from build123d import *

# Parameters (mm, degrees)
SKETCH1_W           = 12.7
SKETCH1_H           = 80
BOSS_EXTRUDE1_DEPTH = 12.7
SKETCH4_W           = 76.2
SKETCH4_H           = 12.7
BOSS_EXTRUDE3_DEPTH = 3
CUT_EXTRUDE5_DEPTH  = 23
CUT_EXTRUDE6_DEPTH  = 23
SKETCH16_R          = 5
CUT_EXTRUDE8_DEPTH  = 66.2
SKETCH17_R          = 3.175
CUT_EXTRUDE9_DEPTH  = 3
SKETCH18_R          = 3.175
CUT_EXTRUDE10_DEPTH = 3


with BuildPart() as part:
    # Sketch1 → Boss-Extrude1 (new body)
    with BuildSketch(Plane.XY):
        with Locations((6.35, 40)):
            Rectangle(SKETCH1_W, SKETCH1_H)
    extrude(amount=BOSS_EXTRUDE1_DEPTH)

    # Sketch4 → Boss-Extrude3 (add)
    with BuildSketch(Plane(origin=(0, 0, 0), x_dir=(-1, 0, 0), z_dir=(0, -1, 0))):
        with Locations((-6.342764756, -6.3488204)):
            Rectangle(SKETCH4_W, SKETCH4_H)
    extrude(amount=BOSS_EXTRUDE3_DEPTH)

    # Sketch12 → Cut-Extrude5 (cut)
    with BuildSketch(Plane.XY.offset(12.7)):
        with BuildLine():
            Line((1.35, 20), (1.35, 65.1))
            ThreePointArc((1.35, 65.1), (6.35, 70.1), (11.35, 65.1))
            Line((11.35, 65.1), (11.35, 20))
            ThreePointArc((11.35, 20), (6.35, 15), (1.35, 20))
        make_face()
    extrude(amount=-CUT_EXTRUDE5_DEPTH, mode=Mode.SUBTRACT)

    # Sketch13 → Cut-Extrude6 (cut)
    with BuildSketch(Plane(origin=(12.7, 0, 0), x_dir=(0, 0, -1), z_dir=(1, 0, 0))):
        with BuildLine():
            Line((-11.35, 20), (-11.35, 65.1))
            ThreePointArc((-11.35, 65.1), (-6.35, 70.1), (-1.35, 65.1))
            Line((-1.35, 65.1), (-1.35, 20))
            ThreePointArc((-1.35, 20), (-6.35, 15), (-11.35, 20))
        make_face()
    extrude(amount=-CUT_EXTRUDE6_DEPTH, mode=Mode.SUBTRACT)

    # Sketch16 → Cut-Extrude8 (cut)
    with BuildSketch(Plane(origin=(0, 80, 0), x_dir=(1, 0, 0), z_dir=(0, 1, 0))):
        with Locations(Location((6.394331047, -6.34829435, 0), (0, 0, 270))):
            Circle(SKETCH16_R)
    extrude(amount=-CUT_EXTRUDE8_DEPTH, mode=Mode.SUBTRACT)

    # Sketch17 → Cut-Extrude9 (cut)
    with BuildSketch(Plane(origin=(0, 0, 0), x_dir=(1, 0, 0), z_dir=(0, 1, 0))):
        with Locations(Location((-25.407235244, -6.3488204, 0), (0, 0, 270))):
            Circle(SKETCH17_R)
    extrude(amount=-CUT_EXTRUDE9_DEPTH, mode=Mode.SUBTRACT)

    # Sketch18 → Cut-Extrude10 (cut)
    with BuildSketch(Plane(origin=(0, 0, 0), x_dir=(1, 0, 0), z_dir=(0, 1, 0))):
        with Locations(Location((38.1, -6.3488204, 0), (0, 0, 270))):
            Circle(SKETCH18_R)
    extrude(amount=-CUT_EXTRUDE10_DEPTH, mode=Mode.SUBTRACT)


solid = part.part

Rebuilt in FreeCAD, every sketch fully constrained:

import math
import FreeCAD as App
import Part
import Sketcher

V = App.Vector
Q = App.Units.Quantity


def add_polygon(sketch, points):
    """Adds a closed chain of lines whose ends are joined by coincident constraints."""
    first, n = sketch.GeometryCount, len(points)
    for a, b in zip(points, points[1:] + points[:1]):
        sketch.addGeometry(Part.LineSegment(App.Vector(*a, 0), App.Vector(*b, 0)), False)
    for i in range(n):
        sketch.addConstraint(Sketcher.Constraint("Coincident", first + i, 2, first + (i + 1) % n, 1))

doc = App.newDocument("Part")
body = doc.addObject("PartDesign::Body", "Body")

# Sketch on XY plane
sketch1 = body.newObject("Sketcher::SketchObject", "Sketch")
sketch1.AttachmentSupport = (doc.getObject("XY_Plane"), [""])
sketch1.MapMode = "FlatFace"
add_polygon(sketch1, [(0, 80), (0, 0), (12.7, 0), (12.7, 80)])  # lines 0-3
sketch1.addConstraint([
    Sketcher.Constraint("Vertical", 0),
    Sketcher.Constraint("Horizontal", 1),
    Sketcher.Constraint("Vertical", 2),
    Sketcher.Constraint("Horizontal", 3),
    Sketcher.Constraint("Coincident", 0, 2, -1, 1),
    Sketcher.Constraint("DistanceY", 0, 2, 0, 1, Q("80 mm")),
    Sketcher.Constraint("DistanceX", 1, 1, 1, 2, Q("12.7 mm")),
])
pad1 = body.newObject("PartDesign::Pad", "Pad")
pad1.Profile = sketch1
pad1.Length = 12.7

# Sketch on XZ plane
sketch2 = body.newObject("Sketcher::SketchObject", "Sketch001")
sketch2.AttachmentSupport = (doc.getObject("XZ_Plane"), [""])
sketch2.MapMode = "FlatFace"
add_polygon(sketch2, [(44.442765, -0.00118), (44.442765, 12.69882), (-31.757235, 12.69882), (-31.757235, -0.00118)])  # lines 0-3
sketch2.addConstraint([
    Sketcher.Constraint("Vertical", 0),
    Sketcher.Constraint("Horizontal", 1),
    Sketcher.Constraint("Vertical", 2),
    Sketcher.Constraint("Horizontal", 3),
    Sketcher.Constraint("DistanceX", 1, 2, 1, 1, Q("76.2 mm")),
    Sketcher.Constraint("DistanceY", 0, 1, 0, 2, Q("12.7 mm")),
    Sketcher.Constraint("DistanceY", -1, 1, 0, 2, Q("12.69882 mm")),
    Sketcher.Constraint("DistanceX", -1, 1, 0, 2, Q("44.442765 mm")),
])
pad2 = body.newObject("PartDesign::Pad", "Pad001")
pad2.Profile = sketch2
pad2.Length = 3

# Sketch on XY plane
sketch3 = body.newObject("Sketcher::SketchObject", "Sketch002")
sketch3.AttachmentSupport = (doc.getObject("XY_Plane"), [""])
sketch3.MapMode = "FlatFace"
sketch3.AttachmentOffset = App.Placement(V(0, 0, 12.7), App.Rotation())
sketch3.addGeometry([
    Part.LineSegment(V(1.35, 65.1, 0), V(1.35, 20, 0)),
    Part.ArcOfCircle(Part.Circle(V(6.35, 20, 0), V(0, 0, 1), 5), math.radians(180), math.radians(360)),
    Part.LineSegment(V(11.35, 20, 0), V(11.35, 65.1, 0)),
    Part.ArcOfCircle(Part.Circle(V(6.35, 65.1, 0), V(0, 0, 1), 5), math.radians(0), math.radians(180)),
], False)
sketch3.addConstraint([
    Sketcher.Constraint("Tangent", 0, 2, 1, 1),
    Sketcher.Constraint("Tangent", 1, 2, 2, 1),
    Sketcher.Constraint("Tangent", 2, 2, 3, 1),
    Sketcher.Constraint("Tangent", 3, 2, 0, 1),
    Sketcher.Constraint("Vertical", 0),
    Sketcher.Constraint("Vertical", 2),
    Sketcher.Constraint("Radius", 1, Q("5 mm")),
    Sketcher.Constraint("DistanceY", 0, 2, 0, 1, Q("45.1 mm")),
    Sketcher.Constraint("DistanceY", -1, 1, 1, 3, Q("20 mm")),
    Sketcher.Constraint("DistanceX", -1, 1, 1, 3, Q("6.35 mm")),
])
pocket1 = body.newObject("PartDesign::Pocket", "Pocket")
pocket1.Profile = sketch3
pocket1.Length = 23

# Sketch on YZ plane
sketch4 = body.newObject("Sketcher::SketchObject", "Sketch003")
sketch4.AttachmentSupport = (doc.getObject("YZ_Plane"), [""])
sketch4.MapMode = "FlatFace"
sketch4.AttachmentOffset = App.Placement(V(0, 0, 12.7), App.Rotation())
sketch4.addGeometry([
    Part.LineSegment(V(65.1, 11.35, 0), V(20, 11.35, 0)),
    Part.ArcOfCircle(Part.Circle(V(20, 6.35, 0), V(0, 0, 1), 5), math.radians(90), math.radians(270)),
    Part.LineSegment(V(20, 1.35, 0), V(65.1, 1.35, 0)),
    Part.ArcOfCircle(Part.Circle(V(65.1, 6.35, 0), V(0, 0, 1), 5), math.radians(-90), math.radians(90)),
], False)
sketch4.addConstraint([
    Sketcher.Constraint("Tangent", 0, 2, 1, 1),
    Sketcher.Constraint("Tangent", 1, 2, 2, 1),
    Sketcher.Constraint("Tangent", 2, 2, 3, 1),
    Sketcher.Constraint("Tangent", 3, 2, 0, 1),
    Sketcher.Constraint("Horizontal", 0),
    Sketcher.Constraint("Horizontal", 2),
    Sketcher.Constraint("Radius", 1, Q("5 mm")),
    Sketcher.Constraint("DistanceX", 0, 2, 0, 1, Q("45.1 mm")),
    Sketcher.Constraint("DistanceX", -1, 1, 1, 3, Q("20 mm")),
    Sketcher.Constraint("DistanceY", -1, 1, 1, 3, Q("6.35 mm")),
])
pocket2 = body.newObject("PartDesign::Pocket", "Pocket001")
pocket2.Profile = sketch4
pocket2.Length = 23

# Sketch on XZ plane
sketch5 = body.newObject("Sketcher::SketchObject", "Sketch004")
sketch5.AttachmentSupport = (doc.getObject("XZ_Plane"), [""])
sketch5.MapMode = "FlatFace"
sketch5.AttachmentOffset = App.Placement(V(0, 0, -80), App.Rotation())
sketch5.addGeometry(Part.Circle(V(6.394331, 6.348294, 0), V(0, 0, 1), 5), False)
sketch5.addConstraint([
    Sketcher.Constraint("Diameter", 0, Q("10 mm")),
    Sketcher.Constraint("DistanceX", -1, 1, 0, 3, Q("6.394331 mm")),
    Sketcher.Constraint("DistanceY", -1, 1, 0, 3, Q("6.348294 mm")),
])
pocket3 = body.newObject("PartDesign::Pocket", "Pocket002")
pocket3.Profile = sketch5
pocket3.Length = 66.2
pocket3.Reversed = True

# Sketch on XZ plane
sketch6 = body.newObject("Sketcher::SketchObject", "Sketch005")
sketch6.AttachmentSupport = (doc.getObject("XZ_Plane"), [""])
sketch6.MapMode = "FlatFace"
sketch6.addGeometry(Part.Circle(V(-25.407235, 6.34882, 0), V(0, 0, 1), 3.175), False)
sketch6.addConstraint([
    Sketcher.Constraint("Diameter", 0, Q("6.35 mm")),
    Sketcher.Constraint("DistanceY", -1, 1, 0, 3, Q("6.34882 mm")),
    Sketcher.Constraint("DistanceX", 0, 3, -1, 1, Q("25.407235 mm")),
])
pocket4 = body.newObject("PartDesign::Pocket", "Pocket003")
pocket4.Profile = sketch6
pocket4.Length = 3
pocket4.Reversed = True

# Sketch on XZ plane
sketch7 = body.newObject("Sketcher::SketchObject", "Sketch006")
sketch7.AttachmentSupport = (doc.getObject("XZ_Plane"), [""])
sketch7.MapMode = "FlatFace"
sketch7.addGeometry(Part.Circle(V(38.1, 6.34882, 0), V(0, 0, 1), 3.175), False)
sketch7.addConstraint([
    Sketcher.Constraint("Diameter", 0, Q("6.35 mm")),
    Sketcher.Constraint("DistanceX", -1, 1, 0, 3, Q("38.1 mm")),
    Sketcher.Constraint("DistanceY", -1, 1, 0, 3, Q("6.34882 mm")),
])
pocket5 = body.newObject("PartDesign::Pocket", "Pocket004")
pocket5.Profile = sketch7
pocket5.Length = 3
pocket5.Reversed = True

doc.recompute()
